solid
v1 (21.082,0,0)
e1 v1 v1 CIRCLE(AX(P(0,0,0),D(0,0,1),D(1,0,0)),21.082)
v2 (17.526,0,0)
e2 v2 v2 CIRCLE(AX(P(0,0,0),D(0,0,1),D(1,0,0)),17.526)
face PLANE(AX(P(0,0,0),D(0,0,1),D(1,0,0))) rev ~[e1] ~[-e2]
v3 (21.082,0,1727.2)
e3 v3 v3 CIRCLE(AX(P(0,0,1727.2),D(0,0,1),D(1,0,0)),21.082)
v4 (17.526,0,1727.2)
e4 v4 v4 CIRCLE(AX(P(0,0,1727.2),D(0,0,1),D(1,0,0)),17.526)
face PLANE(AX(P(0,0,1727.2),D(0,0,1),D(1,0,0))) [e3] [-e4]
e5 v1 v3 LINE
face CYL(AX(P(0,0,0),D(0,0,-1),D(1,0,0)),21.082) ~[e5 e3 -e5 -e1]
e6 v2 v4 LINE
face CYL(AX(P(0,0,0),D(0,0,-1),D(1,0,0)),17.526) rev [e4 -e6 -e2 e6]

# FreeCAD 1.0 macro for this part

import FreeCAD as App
import Part
import Sketcher

V = App.Vector
Q = App.Units.Quantity

doc = App.newDocument("Part")
body = doc.addObject("PartDesign::Body", "Body")

# Sketch on XY plane
sketch1 = body.newObject("Sketcher::SketchObject", "Sketch")
sketch1.AttachmentSupport = (doc.getObject("XY_Plane"), [""])
sketch1.MapMode = "FlatFace"
sketch1.addGeometry([
    Part.Circle(V(0, 0, 0), V(0, 0, 1), 21.082),
    Part.Circle(V(0, 0, 0), V(0, 0, 1), 17.526),
], False)
sketch1.addConstraint([
    Sketcher.Constraint("Coincident", 0, 3, -1, 1),
    Sketcher.Constraint("Coincident", 1, 3, -1, 1),
    Sketcher.Constraint("Diameter", 0, Q("1.66 in")),
    Sketcher.Constraint("Diameter", 1, Q("1.38 in")),
])
pad1 = body.newObject("PartDesign::Pad", "Pad")
pad1.Profile = sketch1
pad1.Length = Q("68 in")

doc.recompute()
